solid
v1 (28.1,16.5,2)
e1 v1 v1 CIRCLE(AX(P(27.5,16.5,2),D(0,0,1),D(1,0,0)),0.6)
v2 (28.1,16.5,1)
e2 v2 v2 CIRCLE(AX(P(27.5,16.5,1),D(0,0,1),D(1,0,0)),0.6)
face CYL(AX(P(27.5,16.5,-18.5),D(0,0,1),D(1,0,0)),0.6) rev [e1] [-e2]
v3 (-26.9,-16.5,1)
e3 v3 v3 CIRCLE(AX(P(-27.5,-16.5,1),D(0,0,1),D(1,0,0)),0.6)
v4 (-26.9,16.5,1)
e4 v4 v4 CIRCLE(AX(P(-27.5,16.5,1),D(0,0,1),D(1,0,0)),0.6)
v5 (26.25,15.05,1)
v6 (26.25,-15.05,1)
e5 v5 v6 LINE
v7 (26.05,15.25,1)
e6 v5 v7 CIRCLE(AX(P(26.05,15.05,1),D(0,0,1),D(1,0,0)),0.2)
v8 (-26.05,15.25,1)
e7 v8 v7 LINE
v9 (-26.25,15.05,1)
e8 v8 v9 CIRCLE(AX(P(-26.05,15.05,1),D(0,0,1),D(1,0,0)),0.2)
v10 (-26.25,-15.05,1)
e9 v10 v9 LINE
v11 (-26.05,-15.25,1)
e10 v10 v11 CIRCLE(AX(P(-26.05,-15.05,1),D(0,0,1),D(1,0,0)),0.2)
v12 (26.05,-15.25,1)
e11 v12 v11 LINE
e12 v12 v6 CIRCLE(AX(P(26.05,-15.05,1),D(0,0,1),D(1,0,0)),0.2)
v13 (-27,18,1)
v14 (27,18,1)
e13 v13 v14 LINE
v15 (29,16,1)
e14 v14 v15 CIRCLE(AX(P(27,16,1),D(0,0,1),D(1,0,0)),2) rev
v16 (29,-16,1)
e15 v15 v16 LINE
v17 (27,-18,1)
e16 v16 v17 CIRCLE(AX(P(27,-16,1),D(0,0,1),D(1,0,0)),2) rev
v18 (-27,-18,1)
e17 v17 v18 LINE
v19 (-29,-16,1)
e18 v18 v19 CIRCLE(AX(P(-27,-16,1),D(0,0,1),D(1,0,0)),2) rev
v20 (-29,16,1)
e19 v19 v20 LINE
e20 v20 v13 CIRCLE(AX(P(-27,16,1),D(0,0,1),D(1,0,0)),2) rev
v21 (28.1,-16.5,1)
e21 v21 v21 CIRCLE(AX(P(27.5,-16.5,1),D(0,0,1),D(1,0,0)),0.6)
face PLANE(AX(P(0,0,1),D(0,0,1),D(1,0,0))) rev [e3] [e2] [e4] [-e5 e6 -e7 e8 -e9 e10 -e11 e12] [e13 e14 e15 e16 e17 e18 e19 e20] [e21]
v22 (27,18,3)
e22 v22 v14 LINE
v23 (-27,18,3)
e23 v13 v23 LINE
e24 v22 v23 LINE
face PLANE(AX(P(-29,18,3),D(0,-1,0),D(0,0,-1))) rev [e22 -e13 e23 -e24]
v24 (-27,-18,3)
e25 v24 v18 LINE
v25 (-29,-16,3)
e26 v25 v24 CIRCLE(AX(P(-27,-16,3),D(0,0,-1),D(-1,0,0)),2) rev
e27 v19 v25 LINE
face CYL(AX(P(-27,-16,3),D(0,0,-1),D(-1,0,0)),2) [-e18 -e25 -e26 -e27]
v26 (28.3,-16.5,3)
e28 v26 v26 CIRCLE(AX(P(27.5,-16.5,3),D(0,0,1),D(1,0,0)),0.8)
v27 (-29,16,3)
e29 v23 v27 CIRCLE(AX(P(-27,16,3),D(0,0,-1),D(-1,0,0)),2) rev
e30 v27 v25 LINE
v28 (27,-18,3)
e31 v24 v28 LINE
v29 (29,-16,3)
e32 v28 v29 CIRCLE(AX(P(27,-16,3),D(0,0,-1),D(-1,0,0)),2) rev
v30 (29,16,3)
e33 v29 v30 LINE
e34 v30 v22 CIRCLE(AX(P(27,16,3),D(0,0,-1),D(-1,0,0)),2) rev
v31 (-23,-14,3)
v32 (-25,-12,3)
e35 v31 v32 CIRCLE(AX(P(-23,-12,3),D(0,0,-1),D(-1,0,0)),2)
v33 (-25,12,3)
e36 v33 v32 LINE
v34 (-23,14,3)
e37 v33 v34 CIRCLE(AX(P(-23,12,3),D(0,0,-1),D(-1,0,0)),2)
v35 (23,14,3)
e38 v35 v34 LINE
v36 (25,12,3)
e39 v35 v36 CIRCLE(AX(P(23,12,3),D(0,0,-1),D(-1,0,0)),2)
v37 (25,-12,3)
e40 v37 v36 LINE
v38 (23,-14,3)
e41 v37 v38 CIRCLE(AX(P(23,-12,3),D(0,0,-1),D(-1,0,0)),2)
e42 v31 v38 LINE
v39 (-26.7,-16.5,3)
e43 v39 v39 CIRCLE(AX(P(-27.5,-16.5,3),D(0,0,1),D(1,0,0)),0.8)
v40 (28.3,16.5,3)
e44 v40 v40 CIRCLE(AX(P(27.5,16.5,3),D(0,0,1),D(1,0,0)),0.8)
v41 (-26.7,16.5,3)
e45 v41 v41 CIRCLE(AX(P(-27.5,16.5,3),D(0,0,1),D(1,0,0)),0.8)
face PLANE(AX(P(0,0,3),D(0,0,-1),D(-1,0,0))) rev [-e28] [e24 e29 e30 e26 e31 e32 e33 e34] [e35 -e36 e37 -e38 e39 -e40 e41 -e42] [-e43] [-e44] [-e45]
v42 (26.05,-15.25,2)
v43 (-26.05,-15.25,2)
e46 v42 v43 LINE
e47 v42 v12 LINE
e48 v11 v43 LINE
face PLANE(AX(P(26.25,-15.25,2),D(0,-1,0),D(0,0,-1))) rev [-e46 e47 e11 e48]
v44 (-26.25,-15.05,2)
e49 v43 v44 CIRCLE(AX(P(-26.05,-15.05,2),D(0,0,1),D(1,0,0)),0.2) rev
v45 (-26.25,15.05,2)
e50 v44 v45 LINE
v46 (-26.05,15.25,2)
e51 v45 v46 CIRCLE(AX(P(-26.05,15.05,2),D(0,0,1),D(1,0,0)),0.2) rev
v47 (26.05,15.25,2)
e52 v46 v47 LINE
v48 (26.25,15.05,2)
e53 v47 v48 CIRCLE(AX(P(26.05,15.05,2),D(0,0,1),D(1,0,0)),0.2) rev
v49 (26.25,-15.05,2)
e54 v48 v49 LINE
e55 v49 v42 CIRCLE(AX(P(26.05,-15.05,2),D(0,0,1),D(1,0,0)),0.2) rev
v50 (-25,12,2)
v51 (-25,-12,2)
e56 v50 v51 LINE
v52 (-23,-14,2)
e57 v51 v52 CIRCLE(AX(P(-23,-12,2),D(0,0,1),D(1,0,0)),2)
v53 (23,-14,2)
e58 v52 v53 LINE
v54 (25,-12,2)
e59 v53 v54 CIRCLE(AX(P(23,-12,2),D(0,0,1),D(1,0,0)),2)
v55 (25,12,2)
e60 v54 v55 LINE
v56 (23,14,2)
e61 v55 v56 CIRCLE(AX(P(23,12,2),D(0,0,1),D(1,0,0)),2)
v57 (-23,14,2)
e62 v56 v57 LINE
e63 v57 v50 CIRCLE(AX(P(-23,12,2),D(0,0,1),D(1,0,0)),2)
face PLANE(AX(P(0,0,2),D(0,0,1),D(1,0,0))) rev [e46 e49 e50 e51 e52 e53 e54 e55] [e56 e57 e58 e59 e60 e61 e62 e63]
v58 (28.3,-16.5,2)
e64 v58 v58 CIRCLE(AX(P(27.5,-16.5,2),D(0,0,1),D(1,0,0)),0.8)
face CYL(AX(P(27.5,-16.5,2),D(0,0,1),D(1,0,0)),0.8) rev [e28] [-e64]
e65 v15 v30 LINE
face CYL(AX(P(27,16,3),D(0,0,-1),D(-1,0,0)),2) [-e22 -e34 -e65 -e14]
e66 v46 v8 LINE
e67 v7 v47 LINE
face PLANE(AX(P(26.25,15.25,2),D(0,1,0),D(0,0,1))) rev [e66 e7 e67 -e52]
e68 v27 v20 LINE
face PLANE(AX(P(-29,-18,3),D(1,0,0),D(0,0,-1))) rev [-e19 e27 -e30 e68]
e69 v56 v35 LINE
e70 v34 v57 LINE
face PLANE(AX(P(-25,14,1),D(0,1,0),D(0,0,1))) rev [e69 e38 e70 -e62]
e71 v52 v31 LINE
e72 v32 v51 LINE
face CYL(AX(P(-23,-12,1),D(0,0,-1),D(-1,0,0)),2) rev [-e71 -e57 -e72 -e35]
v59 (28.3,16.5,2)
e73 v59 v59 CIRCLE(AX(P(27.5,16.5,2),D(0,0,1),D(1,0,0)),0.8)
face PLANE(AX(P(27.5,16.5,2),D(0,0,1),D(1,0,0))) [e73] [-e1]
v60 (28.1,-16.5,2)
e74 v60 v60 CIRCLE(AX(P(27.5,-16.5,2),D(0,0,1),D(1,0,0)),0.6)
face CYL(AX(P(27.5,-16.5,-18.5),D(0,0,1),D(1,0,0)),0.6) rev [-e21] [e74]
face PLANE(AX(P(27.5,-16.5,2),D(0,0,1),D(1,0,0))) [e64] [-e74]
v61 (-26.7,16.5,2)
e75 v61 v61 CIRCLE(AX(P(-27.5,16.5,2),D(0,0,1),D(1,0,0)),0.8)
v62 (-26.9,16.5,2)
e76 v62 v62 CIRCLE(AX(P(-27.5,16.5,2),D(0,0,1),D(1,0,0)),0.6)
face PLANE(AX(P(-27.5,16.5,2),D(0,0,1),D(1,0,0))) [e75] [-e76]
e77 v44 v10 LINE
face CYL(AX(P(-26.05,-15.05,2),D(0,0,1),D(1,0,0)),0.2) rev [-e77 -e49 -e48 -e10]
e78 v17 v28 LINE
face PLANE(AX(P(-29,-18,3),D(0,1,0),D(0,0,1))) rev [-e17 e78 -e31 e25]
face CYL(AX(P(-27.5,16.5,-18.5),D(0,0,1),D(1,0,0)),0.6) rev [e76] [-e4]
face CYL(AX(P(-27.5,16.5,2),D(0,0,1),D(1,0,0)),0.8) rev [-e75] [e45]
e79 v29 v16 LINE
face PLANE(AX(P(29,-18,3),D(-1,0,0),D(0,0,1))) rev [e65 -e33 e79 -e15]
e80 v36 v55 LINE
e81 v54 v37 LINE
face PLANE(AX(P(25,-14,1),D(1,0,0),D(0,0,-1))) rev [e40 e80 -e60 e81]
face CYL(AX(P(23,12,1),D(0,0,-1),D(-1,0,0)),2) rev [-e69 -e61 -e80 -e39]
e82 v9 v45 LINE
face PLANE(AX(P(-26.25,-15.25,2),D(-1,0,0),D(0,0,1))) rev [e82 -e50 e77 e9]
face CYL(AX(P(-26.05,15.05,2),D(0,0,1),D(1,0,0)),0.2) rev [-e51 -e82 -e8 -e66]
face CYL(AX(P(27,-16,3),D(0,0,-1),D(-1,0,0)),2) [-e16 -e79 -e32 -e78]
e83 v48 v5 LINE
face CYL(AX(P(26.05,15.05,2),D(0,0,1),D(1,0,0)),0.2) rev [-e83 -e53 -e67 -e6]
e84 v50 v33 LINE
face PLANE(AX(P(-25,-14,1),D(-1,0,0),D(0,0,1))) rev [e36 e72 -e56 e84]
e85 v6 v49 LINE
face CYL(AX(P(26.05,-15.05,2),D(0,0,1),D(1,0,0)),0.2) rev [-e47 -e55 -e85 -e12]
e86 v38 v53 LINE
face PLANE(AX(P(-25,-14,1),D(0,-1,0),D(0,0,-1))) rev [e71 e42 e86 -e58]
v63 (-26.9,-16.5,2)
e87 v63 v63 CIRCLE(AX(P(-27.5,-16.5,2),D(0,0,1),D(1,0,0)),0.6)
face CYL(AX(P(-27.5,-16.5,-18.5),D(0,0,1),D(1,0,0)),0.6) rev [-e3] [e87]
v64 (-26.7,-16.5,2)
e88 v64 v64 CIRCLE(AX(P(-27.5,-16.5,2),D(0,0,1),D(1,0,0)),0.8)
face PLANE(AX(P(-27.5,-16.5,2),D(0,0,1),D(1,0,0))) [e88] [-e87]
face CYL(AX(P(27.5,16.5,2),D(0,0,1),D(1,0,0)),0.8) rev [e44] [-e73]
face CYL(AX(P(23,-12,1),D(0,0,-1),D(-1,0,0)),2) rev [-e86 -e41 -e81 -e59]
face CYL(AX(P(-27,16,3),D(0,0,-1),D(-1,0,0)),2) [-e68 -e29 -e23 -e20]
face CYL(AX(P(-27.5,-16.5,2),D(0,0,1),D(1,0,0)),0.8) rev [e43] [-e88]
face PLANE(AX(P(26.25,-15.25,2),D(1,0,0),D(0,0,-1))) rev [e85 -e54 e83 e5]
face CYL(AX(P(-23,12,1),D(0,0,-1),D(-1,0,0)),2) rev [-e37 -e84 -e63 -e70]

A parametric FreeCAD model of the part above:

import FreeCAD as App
import Part
import Sketcher
from FreeCAD import Vector
Q = App.Units.Quantity


def edges_at(feature, points):
    """Names of the edges that pass closest to the given points."""
    edges = feature.Shape.Edges
    near = lambda p: min(range(len(edges)), key=lambda i: edges[i].distToShape(Part.Vertex(*p))[0])
    return sorted({f"Edge{near(p) + 1}" for p in points})

doc = App.newDocument("Part")
body = doc.addObject("PartDesign::Body", "Body")

# Sketch on XY plane
sketch1 = body.newObject("Sketcher::SketchObject", "Sketch")
sketch1.AttachmentSupport = (doc.getObject("XY_Plane"), [""])
sketch1.MapMode = "FlatFace"
sketch1.addGeometry(Part.LineSegment(Vector(-29, 18, 0), Vector(-29, -18, 0)), False)
sketch1.addGeometry(Part.LineSegment(Vector(-29, -18, 0), Vector(29, -18, 0)), False)
sketch1.addGeometry(Part.LineSegment(Vector(29, -18, 0), Vector(29, 18, 0)), False)
sketch1.addGeometry(Part.LineSegment(Vector(29, 18, 0), Vector(-29, 18, 0)), False)
sketch1.addConstraint(Sketcher.Constraint("Coincident", 0, 2, 1, 1))
sketch1.addConstraint(Sketcher.Constraint("Coincident", 1, 2, 2, 1))
sketch1.addConstraint(Sketcher.Constraint("Coincident", 2, 2, 3, 1))
sketch1.addConstraint(Sketcher.Constraint("Coincident", 3, 2, 0, 1))
sketch1.addConstraint(Sketcher.Constraint("Vertical", 0))
sketch1.addConstraint(Sketcher.Constraint("Horizontal", 1))
sketch1.addConstraint(Sketcher.Constraint("Vertical", 2))
sketch1.addConstraint(Sketcher.Constraint("Horizontal", 3))
sketch1.addConstraint(Sketcher.Constraint("Symmetric", 0, 2, 2, 2, -1, 1))
sketch1.addConstraint(Sketcher.Constraint("DistanceX", 1, 1, 1, 2, Q("58 mm")))
sketch1.addConstraint(Sketcher.Constraint("DistanceY", 0, 2, 0, 1, Q("36 mm")))
pad1 = body.newObject("PartDesign::Pad", "Pad")
pad1.Profile = sketch1
pad1.Length = 3

# Sketch on XY plane
sketch2 = body.newObject("Sketcher::SketchObject", "Sketch001")
sketch2.AttachmentSupport = (doc.getObject("XY_Plane"), [""])
sketch2.MapMode = "FlatFace"
sketch2.addGeometry(Part.LineSegment(Vector(26, 15, 0), Vector(26, -15, 0)), False)
sketch2.addGeometry(Part.LineSegment(Vector(26, -15, 0), Vector(-26, -15, 0)), False)
sketch2.addGeometry(Part.LineSegment(Vector(-26, -15, 0), Vector(-26, 15, 0)), False)
sketch2.addGeometry(Part.LineSegment(Vector(-26, 15, 0), Vector(26, 15, 0)), False)
sketch2.addConstraint(Sketcher.Constraint("Coincident", 0, 2, 1, 1))
sketch2.addConstraint(Sketcher.Constraint("Coincident", 1, 2, 2, 1))
sketch2.addConstraint(Sketcher.Constraint("Coincident", 2, 2, 3, 1))
sketch2.addConstraint(Sketcher.Constraint("Coincident", 3, 2, 0, 1))
sketch2.addConstraint(Sketcher.Constraint("Vertical", 0))
sketch2.addConstraint(Sketcher.Constraint("Horizontal", 1))
sketch2.addConstraint(Sketcher.Constraint("Vertical", 2))
sketch2.addConstraint(Sketcher.Constraint("Horizontal", 3))
sketch2.addConstraint(Sketcher.Constraint("Symmetric", 0, 2, 2, 2, -1, 1))
sketch2.addConstraint(Sketcher.Constraint("DistanceX", 1, 2, 1, 1, Q("52.5 mm")))
sketch2.addConstraint(Sketcher.Constraint("DistanceY", 0, 2, 0, 1, Q("30.5 mm")))
pocket1 = body.newObject("PartDesign::Pocket", "Pocket")
pocket1.Profile = sketch2
pocket1.Length = 2
pocket1.Reversed = True

# Sketch on XY plane
sketch3 = body.newObject("Sketcher::SketchObject", "Sketch002")
sketch3.AttachmentSupport = (doc.getObject("XY_Plane"), [""])
sketch3.MapMode = "FlatFace"
sketch3.AttachmentOffset = App.Placement(Vector(0, 0, 3), App.Rotation())
sketch3.addGeometry(Part.LineSegment(Vector(-25, 14, 0), Vector(-25, -14, 0)), False)
sketch3.addGeometry(Part.LineSegment(Vector(-25, -14, 0), Vector(25, -14, 0)), False)
sketch3.addGeometry(Part.LineSegment(Vector(25, -14, 0), Vector(25, 14, 0)), False)
sketch3.addGeometry(Part.LineSegment(Vector(25, 14, 0), Vector(-25, 14, 0)), False)
sketch3.addConstraint(Sketcher.Constraint("Coincident", 0, 2, 1, 1))
sketch3.addConstraint(Sketcher.Constraint("Coincident", 1, 2, 2, 1))
sketch3.addConstraint(Sketcher.Constraint("Coincident", 2, 2, 3, 1))
sketch3.addConstraint(Sketcher.Constraint("Coincident", 3, 2, 0, 1))
sketch3.addConstraint(Sketcher.Constraint("Vertical", 0))
sketch3.addConstraint(Sketcher.Constraint("Horizontal", 1))
sketch3.addConstraint(Sketcher.Constraint("Vertical", 2))
sketch3.addConstraint(Sketcher.Constraint("Horizontal", 3))
sketch3.addConstraint(Sketcher.Constraint("Symmetric", 0, 2, 2, 2, -1, 1))
sketch3.addConstraint(Sketcher.Constraint("DistanceX", 1, 1, 1, 2, Q("50 mm")))
sketch3.addConstraint(Sketcher.Constraint("DistanceY", 0, 2, 0, 1, Q("28 mm")))
pocket2 = body.newObject("PartDesign::Pocket", "Pocket001")
pocket2.Profile = sketch3
pocket2.Length = 2
doc.recompute()

fillet = body.newObject("PartDesign::Fillet", "Fillet")
fillet.Base = (pocket2, edges_at(pocket2, [
    (25, 14, 2.5),
    (25, -14, 2.5),
    (-25, -14, 2.5),
    (-25, 14, 2.5),
    (29, -18, 1.5),
    (-29, -18, 1.5),
    (-29, 18, 1.5),
    (29, 18, 1.5),
]))
fillet.Radius = 2

# Sketch on XY plane
sketch4 = body.newObject("Sketcher::SketchObject", "Sketch003")
sketch4.AttachmentSupport = (doc.getObject("XY_Plane"), [""])
sketch4.MapMode = "FlatFace"
sketch4.addGeometry(Part.LineSegment(Vector(29, 18, 0), Vector(29, -18, 0)), False)
sketch4.addGeometry(Part.LineSegment(Vector(29, -18, 0), Vector(-29, -18, 0)), False)
sketch4.addGeometry(Part.LineSegment(Vector(-29, -18, 0), Vector(-29, 18, 0)), False)
sketch4.addGeometry(Part.LineSegment(Vector(-29, 18, 0), Vector(29, 18, 0)), False)
sketch4.addConstraint(Sketcher.Constraint("Coincident", 0, 2, 1, 1))
sketch4.addConstraint(Sketcher.Constraint("Coincident", 1, 2, 2, 1))
sketch4.addConstraint(Sketcher.Constraint("Coincident", 2, 2, 3, 1))
sketch4.addConstraint(Sketcher.Constraint("Coincident", 3, 2, 0, 1))
sketch4.addConstraint(Sketcher.Constraint("Vertical", 0))
sketch4.addConstraint(Sketcher.Constraint("Horizontal", 1))
sketch4.addConstraint(Sketcher.Constraint("Vertical", 2))
sketch4.addConstraint(Sketcher.Constraint("Horizontal", 3))
sketch4.addConstraint(Sketcher.Constraint("Symmetric", 0, 2, 2, 2, -1, 1))
sketch4.addConstraint(Sketcher.Constraint("DistanceX", 1, 2, 1, 1, Q("58 mm")))
sketch4.addConstraint(Sketcher.Constraint("DistanceY", 0, 2, 0, 1, Q("36 mm")))
pocket3 = body.newObject("PartDesign::Pocket", "Pocket002")
pocket3.Profile = sketch4
pocket3.Length = 1
pocket3.Reversed = True
doc.recompute()

fillet2 = body.newObject("PartDesign::Fillet", "Fillet001")
fillet2.Base = (pocket3, edges_at(pocket3, [
    (-26.25, 15.25, 1.5),
    (-26.25, -15.25, 1.5),
    (26.25, -15.25, 1.5),
    (26.25, 15.25, 1.5),
]))
fillet2.Radius = 0.2

# Sketch on XY plane
sketch5 = body.newObject("Sketcher::SketchObject", "Sketch004")
sketch5.AttachmentSupport = (doc.getObject("XY_Plane"), [""])
sketch5.MapMode = "FlatFace"
sketch5.AttachmentOffset = App.Placement(Vector(0, 0, 3), App.Rotation())
sketch5.addGeometry(Part.Circle(Vector(-27.5, 16.5, 0), Vector(0, 0, 1), 0.8), False)
sketch5.addGeometry(Part.Circle(Vector(27.5, 16.5, 0), Vector(0, 0, 1), 0.8), False)
sketch5.addGeometry(Part.Circle(Vector(27.5, -16.5, 0), Vector(0, 0, 1), 0.8), False)
sketch5.addGeometry(Part.Circle(Vector(-27.5, -16.5, 0), Vector(0, 0, 1), 0.8), False)
sketch5.addConstraint(Sketcher.Constraint("Equal", 0, 1))
sketch5.addConstraint(Sketcher.Constraint("Equal", 1, 2))
sketch5.addConstraint(Sketcher.Constraint("Equal", 2, 3))
sketch5.addConstraint(Sketcher.Constraint("Symmetric", 0, 3, 2, 3, -1, 1))
sketch5.addConstraint(Sketcher.Constraint("Symmetric", 1, 3, 3, 3, -1, 1))
sketch5.addConstraint(Sketcher.Constraint("Symmetric", 0, 3, 1, 3, -2))
sketch5.addConstraint(Sketcher.Constraint("Diameter", 0, Q("1.6 mm")))
sketch5.addConstraint(Sketcher.Constraint("DistanceX", 0, 3, 1, 3, Q("55 mm")))
sketch5.addConstraint(Sketcher.Constraint("DistanceY", 2, 3, 1, 3, Q("33 mm")))
pocket4 = body.newObject("PartDesign::Pocket", "Pocket003")
pocket4.Profile = sketch5
pocket4.Length = 1

# Sketch on XY plane
sketch6 = body.newObject("Sketcher::SketchObject", "Sketch005")
sketch6.AttachmentSupport = (doc.getObject("XY_Plane"), [""])
sketch6.MapMode = "FlatFace"
sketch6.AttachmentOffset = App.Placement(Vector(0, 0, 2), App.Rotation())
sketch6.addGeometry(Part.Circle(Vector(-27.5, 16.5, 0), Vector(0, 0, 1), 0.6), False)
sketch6.addGeometry(Part.Circle(Vector(27.5, 16.5, 0), Vector(0, 0, 1), 0.6), False)
sketch6.addGeometry(Part.Circle(Vector(27.5, -16.5, 0), Vector(0, 0, 1), 0.6), False)
sketch6.addGeometry(Part.Circle(Vector(-27.5, -16.5, 0), Vector(0, 0, 1), 0.6), False)
sketch6.addConstraint(Sketcher.Constraint("Equal", 0, 1))
sketch6.addConstraint(Sketcher.Constraint("Equal", 1, 2))
sketch6.addConstraint(Sketcher.Constraint("Equal", 2, 3))
sketch6.addConstraint(Sketcher.Constraint("Symmetric", 0, 3, 2, 3, -1, 1))
sketch6.addConstraint(Sketcher.Constraint("Symmetric", 1, 3, 3, 3, -1, 1))
sketch6.addConstraint(Sketcher.Constraint("Symmetric", 0, 3, 1, 3, -2))
sketch6.addConstraint(Sketcher.Constraint("Diameter", 0, Q("1.2 mm")))
sketch6.addConstraint(Sketcher.Constraint("DistanceX", 0, 3, 1, 3, Q("55 mm")))
sketch6.addConstraint(Sketcher.Constraint("DistanceY", 2, 3, 1, 3, Q("33 mm")))
pocket5 = body.newObject("PartDesign::Pocket", "Pocket004")
pocket5.Profile = sketch6
pocket5.Length = 20.5

doc.recompute()
